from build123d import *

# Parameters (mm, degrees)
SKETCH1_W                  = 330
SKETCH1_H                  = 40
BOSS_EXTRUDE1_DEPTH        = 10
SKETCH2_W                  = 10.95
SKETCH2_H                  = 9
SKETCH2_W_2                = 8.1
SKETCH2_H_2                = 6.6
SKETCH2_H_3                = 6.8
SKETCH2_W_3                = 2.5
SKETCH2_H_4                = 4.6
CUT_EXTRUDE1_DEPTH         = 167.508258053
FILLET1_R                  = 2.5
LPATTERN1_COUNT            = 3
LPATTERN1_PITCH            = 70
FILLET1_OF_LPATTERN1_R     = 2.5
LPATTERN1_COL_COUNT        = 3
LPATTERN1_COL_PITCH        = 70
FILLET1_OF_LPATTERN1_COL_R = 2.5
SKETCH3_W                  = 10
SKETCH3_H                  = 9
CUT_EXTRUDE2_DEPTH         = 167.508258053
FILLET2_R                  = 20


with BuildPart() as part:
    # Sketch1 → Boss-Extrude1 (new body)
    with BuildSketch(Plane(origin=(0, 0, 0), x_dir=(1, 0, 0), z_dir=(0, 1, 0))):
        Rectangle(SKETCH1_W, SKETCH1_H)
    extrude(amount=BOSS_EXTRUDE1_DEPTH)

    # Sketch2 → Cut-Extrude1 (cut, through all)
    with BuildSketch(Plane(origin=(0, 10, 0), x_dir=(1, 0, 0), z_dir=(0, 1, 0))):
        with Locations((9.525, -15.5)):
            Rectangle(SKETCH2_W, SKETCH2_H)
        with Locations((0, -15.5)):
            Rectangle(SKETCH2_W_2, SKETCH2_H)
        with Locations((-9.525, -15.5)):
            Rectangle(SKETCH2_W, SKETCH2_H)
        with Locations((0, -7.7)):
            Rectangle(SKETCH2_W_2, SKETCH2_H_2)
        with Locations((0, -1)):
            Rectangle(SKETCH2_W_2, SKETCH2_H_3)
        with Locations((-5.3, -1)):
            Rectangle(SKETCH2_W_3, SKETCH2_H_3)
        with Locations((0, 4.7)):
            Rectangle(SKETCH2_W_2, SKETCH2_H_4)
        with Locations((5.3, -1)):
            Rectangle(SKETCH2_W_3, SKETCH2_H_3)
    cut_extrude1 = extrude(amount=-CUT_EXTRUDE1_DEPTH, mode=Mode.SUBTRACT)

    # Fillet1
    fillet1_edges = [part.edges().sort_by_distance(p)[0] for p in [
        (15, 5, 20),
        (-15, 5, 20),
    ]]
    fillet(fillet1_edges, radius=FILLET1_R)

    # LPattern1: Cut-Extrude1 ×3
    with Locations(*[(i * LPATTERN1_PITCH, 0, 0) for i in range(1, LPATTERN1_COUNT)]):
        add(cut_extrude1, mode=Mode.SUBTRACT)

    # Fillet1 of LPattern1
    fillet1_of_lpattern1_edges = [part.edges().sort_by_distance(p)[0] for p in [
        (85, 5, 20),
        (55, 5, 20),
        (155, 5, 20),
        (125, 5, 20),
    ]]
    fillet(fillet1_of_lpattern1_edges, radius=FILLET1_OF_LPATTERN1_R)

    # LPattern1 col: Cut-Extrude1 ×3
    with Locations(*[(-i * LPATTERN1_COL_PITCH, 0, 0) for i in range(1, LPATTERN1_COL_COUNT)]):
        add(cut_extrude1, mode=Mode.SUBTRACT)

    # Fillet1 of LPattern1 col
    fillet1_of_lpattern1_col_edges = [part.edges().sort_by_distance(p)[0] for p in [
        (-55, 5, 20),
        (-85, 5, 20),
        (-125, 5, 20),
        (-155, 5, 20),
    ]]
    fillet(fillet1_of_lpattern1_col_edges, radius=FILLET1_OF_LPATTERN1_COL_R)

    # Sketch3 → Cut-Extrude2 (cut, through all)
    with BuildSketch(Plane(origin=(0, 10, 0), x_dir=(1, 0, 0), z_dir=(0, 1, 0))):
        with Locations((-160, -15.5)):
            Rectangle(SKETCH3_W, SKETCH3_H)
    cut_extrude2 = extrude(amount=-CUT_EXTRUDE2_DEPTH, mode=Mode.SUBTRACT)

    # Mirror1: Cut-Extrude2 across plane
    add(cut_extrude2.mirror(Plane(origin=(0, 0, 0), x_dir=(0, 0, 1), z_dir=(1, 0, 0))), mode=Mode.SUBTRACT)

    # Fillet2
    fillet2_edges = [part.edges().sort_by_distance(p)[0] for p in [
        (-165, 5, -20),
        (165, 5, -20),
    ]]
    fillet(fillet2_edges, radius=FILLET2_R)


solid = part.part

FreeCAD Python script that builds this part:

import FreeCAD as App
import Part
import Sketcher

V = App.Vector
Q = App.Units.Quantity


def edges_at(feature, points):
    """Names of the edges that pass closest to the given points."""
    edges = feature.Shape.Edges
    near = lambda p: min(range(len(edges)), key=lambda i: edges[i].distToShape(Part.Vertex(*p))[0])
    return sorted({f"Edge{near(p) + 1}" for p in points})


def add_polygon(sketch, points):
    """Adds a closed chain of lines whose ends are joined by coincident constraints."""
    first, n = sketch.GeometryCount, len(points)
    for a, b in zip(points, points[1:] + points[:1]):
        sketch.addGeometry(Part.LineSegment(App.Vector(*a, 0), App.Vector(*b, 0)), False)
    for i in range(n):
        sketch.addConstraint(Sketcher.Constraint("Coincident", first + i, 2, first + (i + 1) % n, 1))

doc = App.newDocument("Part")
body = doc.addObject("PartDesign::Body", "Body")

sketch1 = body.newObject("Sketcher::SketchObject", "Sketch")
sketch1.AttachmentSupport = (doc.getObject("XZ_Plane"), [""])
sketch1.MapMode = "FlatFace"
add_polygon(sketch1, [(-165, -20), (-165, 20), (165, 20), (165, -20)])
sketch1.addConstraint(Sketcher.Constraint("Vertical", 0))
sketch1.addConstraint(Sketcher.Constraint("Horizontal", 1))
sketch1.addConstraint(Sketcher.Constraint("Vertical", 2))
sketch1.addConstraint(Sketcher.Constraint("Horizontal", 3))
sketch1.addConstraint(Sketcher.Constraint("Symmetric", 0, 2, 2, 2, -1, 1))
sketch1.addConstraint(Sketcher.Constraint("DistanceX", 1, 1, 1, 2, Q("330 mm")))
sketch1.addConstraint(Sketcher.Constraint("DistanceY", 0, 1, 0, 2, Q("40 mm")))
pad1 = body.newObject("PartDesign::Pad", "Pad")
pad1.Profile = sketch1
pad1.Length = 10
pad1.Reversed = True

sketch2 = body.newObject("Sketcher::SketchObject", "Sketch001")
sketch2.AttachmentSupport = (doc.getObject("XZ_Plane"), [""])
sketch2.MapMode = "FlatFace"
sketch2.AttachmentOffset = App.Placement(V(0, 0, -10), App.Rotation())
add_polygon(sketch2, [(15, 20), (15, 11), (4, 11), (4, 4.4), (6.5, 4.4), (6.5, -2.4), (4, -2.4), (4, -7), (-4, -7), (-4, -2.4), (-6.5, -2.4), (-6.5, 4.4), (-4, 4.4), (-4, 11), (-15, 11), (-15, 20)])
sketch2.addConstraint(Sketcher.Constraint("Vertical", 0))
sketch2.addConstraint(Sketcher.Constraint("Horizontal", 1))
sketch2.addConstraint(Sketcher.Constraint("Vertical", 2))
sketch2.addConstraint(Sketcher.Constraint("Horizontal", 3))
sketch2.addConstraint(Sketcher.Constraint("Vertical", 4))
sketch2.addConstraint(Sketcher.Constraint("Horizontal", 5))
sketch2.addConstraint(Sketcher.Constraint("Vertical", 6))
sketch2.addConstraint(Sketcher.Constraint("Horizontal", 7))
sketch2.addConstraint(Sketcher.Constraint("Vertical", 8))
sketch2.addConstraint(Sketcher.Constraint("Horizontal", 9))
sketch2.addConstraint(Sketcher.Constraint("Vertical", 10))
sketch2.addConstraint(Sketcher.Constraint("Horizontal", 11))
sketch2.addConstraint(Sketcher.Constraint("Vertical", 12))
sketch2.addConstraint(Sketcher.Constraint("Horizontal", 13))
sketch2.addConstraint(Sketcher.Constraint("Vertical", 14))
sketch2.addConstraint(Sketcher.Constraint("Horizontal", 15))
sketch2.addConstraint(Sketcher.Constraint("Symmetric", 5, 2, 8, 2, -2))
sketch2.addConstraint(Sketcher.Constraint("Symmetric", 3, 2, 10, 2, -2))
sketch2.addConstraint(Sketcher.Constraint("Symmetric", 1, 2, 12, 2, -2))
sketch2.addConstraint(Sketcher.Constraint("Vertical", 2, 2, 5, 2))
sketch2.addConstraint(Sketcher.Constraint("Equal", 1, 13))
sketch2.addConstraint(Sketcher.Constraint("DistanceX", 15, 1, 15, 2, Q("30 mm")))
sketch2.addConstraint(Sketcher.Constraint("DistanceY", 0, 2, 0, 1, Q("9 mm")))
sketch2.addConstraint(Sketcher.Constraint("DistanceX", 3, 1, 3, 2, Q("2.5 mm")))
sketch2.addConstraint(Sketcher.Constraint("DistanceX", 7, 2, 7, 1, Q("8.1 mm")))
sketch2.addConstraint(Sketcher.Constraint("DistanceY", 2, 2, 2, 1, Q("6.6 mm")))
sketch2.addConstraint(Sketcher.Constraint("DistanceY", 4, 2, 4, 1, Q("6.8 mm")))
sketch2.addConstraint(Sketcher.Constraint("DistanceY", 6, 2, 6, 1, Q("4.6 mm")))
sketch2.addConstraint(Sketcher.Constraint("DistanceY", -1, 1, 0, 2, Q("11 mm")))
pocket1 = body.newObject("PartDesign::Pocket", "Pocket")
pocket1.Profile = sketch2
pocket1.Type = "ThroughAll"
pocket1.Reversed = True
doc.recompute()

fillet = body.newObject("PartDesign::Fillet", "Fillet")
fillet.Base = (pocket1, edges_at(pocket1, [(15, 5, 20), (-15, 5, 20)]))
fillet.Radius = 2.5
doc.recompute()

linearpattern = body.newObject("PartDesign::LinearPattern", "LinearPattern")
linearpattern.Originals = [pocket1]
linearpattern.Direction = (doc.getObject("X_Axis"), [""])
linearpattern.Mode = "offset"
linearpattern.Offset = 70
linearpattern.Occurrences = 3
body.Tip = linearpattern
doc.recompute()

fillet2 = body.newObject("PartDesign::Fillet", "Fillet001")
fillet2.Base = (linearpattern, edges_at(linearpattern, [
    (85, 5, 20),
    (55, 5, 20),
    (155, 5, 20),
    (125, 5, 20),
]))
fillet2.Radius = 2.5
doc.recompute()

linearpattern2 = body.newObject("PartDesign::LinearPattern", "LinearPattern001")
linearpattern2.Originals = [pocket1]
linearpattern2.Direction = (doc.getObject("X_Axis"), [""])
linearpattern2.Mode = "offset"
linearpattern2.Offset = 70
linearpattern2.Occurrences = 3
linearpattern2.Reversed = True
body.Tip = linearpattern2
doc.recompute()

fillet3 = body.newObject("PartDesign::Fillet", "Fillet002")
fillet3.Base = (linearpattern2, edges_at(linearpattern2, [
    (-55, 5, 20),
    (-85, 5, 20),
    (-125, 5, 20),
    (-155, 5, 20),
]))
fillet3.Radius = 2.5

sketch3 = body.newObject("Sketcher::SketchObject", "Sketch002")
sketch3.AttachmentSupport = (doc.getObject("XZ_Plane"), [""])
sketch3.MapMode = "FlatFace"
sketch3.AttachmentOffset = App.Placement(V(0, 0, -10), App.Rotation())
add_polygon(sketch3, [(-165, 11), (-165, 20), (-155, 20), (-155, 11)])
sketch3.addConstraint(Sketcher.Constraint("Vertical", 0))
sketch3.addConstraint(Sketcher.Constraint("Horizontal", 1))
sketch3.addConstraint(Sketcher.Constraint("Vertical", 2))
sketch3.addConstraint(Sketcher.Constraint("Horizontal", 3))
sketch3.addConstraint(Sketcher.Constraint("DistanceX", 1, 1, 1, 2, Q("10 mm")))
sketch3.addConstraint(Sketcher.Constraint("DistanceY", 0, 1, 0, 2, Q("9 mm")))
sketch3.addConstraint(Sketcher.Constraint("DistanceX", 0, 2, -1, 1, Q("165 mm")))
sketch3.addConstraint(Sketcher.Constraint("DistanceY", -1, 1, 0, 2, Q("20 mm")))
pocket2 = body.newObject("PartDesign::Pocket", "Pocket001")
pocket2.Profile = sketch3
pocket2.Type = "ThroughAll"
pocket2.Reversed = True
doc.recompute()

mirrored = body.newObject("PartDesign::Mirrored", "Mirrored")
mirrored.Originals = [pocket2]
mirrored.MirrorPlane = (doc.getObject("YZ_Plane"), [""])
body.Tip = mirrored
doc.recompute()

fillet4 = body.newObject("PartDesign::Fillet", "Fillet003")
fillet4.Base = (mirrored, edges_at(mirrored, [(-165, 5, -20), (165, 5, -20)]))
fillet4.Radius = 20

doc.recompute()
